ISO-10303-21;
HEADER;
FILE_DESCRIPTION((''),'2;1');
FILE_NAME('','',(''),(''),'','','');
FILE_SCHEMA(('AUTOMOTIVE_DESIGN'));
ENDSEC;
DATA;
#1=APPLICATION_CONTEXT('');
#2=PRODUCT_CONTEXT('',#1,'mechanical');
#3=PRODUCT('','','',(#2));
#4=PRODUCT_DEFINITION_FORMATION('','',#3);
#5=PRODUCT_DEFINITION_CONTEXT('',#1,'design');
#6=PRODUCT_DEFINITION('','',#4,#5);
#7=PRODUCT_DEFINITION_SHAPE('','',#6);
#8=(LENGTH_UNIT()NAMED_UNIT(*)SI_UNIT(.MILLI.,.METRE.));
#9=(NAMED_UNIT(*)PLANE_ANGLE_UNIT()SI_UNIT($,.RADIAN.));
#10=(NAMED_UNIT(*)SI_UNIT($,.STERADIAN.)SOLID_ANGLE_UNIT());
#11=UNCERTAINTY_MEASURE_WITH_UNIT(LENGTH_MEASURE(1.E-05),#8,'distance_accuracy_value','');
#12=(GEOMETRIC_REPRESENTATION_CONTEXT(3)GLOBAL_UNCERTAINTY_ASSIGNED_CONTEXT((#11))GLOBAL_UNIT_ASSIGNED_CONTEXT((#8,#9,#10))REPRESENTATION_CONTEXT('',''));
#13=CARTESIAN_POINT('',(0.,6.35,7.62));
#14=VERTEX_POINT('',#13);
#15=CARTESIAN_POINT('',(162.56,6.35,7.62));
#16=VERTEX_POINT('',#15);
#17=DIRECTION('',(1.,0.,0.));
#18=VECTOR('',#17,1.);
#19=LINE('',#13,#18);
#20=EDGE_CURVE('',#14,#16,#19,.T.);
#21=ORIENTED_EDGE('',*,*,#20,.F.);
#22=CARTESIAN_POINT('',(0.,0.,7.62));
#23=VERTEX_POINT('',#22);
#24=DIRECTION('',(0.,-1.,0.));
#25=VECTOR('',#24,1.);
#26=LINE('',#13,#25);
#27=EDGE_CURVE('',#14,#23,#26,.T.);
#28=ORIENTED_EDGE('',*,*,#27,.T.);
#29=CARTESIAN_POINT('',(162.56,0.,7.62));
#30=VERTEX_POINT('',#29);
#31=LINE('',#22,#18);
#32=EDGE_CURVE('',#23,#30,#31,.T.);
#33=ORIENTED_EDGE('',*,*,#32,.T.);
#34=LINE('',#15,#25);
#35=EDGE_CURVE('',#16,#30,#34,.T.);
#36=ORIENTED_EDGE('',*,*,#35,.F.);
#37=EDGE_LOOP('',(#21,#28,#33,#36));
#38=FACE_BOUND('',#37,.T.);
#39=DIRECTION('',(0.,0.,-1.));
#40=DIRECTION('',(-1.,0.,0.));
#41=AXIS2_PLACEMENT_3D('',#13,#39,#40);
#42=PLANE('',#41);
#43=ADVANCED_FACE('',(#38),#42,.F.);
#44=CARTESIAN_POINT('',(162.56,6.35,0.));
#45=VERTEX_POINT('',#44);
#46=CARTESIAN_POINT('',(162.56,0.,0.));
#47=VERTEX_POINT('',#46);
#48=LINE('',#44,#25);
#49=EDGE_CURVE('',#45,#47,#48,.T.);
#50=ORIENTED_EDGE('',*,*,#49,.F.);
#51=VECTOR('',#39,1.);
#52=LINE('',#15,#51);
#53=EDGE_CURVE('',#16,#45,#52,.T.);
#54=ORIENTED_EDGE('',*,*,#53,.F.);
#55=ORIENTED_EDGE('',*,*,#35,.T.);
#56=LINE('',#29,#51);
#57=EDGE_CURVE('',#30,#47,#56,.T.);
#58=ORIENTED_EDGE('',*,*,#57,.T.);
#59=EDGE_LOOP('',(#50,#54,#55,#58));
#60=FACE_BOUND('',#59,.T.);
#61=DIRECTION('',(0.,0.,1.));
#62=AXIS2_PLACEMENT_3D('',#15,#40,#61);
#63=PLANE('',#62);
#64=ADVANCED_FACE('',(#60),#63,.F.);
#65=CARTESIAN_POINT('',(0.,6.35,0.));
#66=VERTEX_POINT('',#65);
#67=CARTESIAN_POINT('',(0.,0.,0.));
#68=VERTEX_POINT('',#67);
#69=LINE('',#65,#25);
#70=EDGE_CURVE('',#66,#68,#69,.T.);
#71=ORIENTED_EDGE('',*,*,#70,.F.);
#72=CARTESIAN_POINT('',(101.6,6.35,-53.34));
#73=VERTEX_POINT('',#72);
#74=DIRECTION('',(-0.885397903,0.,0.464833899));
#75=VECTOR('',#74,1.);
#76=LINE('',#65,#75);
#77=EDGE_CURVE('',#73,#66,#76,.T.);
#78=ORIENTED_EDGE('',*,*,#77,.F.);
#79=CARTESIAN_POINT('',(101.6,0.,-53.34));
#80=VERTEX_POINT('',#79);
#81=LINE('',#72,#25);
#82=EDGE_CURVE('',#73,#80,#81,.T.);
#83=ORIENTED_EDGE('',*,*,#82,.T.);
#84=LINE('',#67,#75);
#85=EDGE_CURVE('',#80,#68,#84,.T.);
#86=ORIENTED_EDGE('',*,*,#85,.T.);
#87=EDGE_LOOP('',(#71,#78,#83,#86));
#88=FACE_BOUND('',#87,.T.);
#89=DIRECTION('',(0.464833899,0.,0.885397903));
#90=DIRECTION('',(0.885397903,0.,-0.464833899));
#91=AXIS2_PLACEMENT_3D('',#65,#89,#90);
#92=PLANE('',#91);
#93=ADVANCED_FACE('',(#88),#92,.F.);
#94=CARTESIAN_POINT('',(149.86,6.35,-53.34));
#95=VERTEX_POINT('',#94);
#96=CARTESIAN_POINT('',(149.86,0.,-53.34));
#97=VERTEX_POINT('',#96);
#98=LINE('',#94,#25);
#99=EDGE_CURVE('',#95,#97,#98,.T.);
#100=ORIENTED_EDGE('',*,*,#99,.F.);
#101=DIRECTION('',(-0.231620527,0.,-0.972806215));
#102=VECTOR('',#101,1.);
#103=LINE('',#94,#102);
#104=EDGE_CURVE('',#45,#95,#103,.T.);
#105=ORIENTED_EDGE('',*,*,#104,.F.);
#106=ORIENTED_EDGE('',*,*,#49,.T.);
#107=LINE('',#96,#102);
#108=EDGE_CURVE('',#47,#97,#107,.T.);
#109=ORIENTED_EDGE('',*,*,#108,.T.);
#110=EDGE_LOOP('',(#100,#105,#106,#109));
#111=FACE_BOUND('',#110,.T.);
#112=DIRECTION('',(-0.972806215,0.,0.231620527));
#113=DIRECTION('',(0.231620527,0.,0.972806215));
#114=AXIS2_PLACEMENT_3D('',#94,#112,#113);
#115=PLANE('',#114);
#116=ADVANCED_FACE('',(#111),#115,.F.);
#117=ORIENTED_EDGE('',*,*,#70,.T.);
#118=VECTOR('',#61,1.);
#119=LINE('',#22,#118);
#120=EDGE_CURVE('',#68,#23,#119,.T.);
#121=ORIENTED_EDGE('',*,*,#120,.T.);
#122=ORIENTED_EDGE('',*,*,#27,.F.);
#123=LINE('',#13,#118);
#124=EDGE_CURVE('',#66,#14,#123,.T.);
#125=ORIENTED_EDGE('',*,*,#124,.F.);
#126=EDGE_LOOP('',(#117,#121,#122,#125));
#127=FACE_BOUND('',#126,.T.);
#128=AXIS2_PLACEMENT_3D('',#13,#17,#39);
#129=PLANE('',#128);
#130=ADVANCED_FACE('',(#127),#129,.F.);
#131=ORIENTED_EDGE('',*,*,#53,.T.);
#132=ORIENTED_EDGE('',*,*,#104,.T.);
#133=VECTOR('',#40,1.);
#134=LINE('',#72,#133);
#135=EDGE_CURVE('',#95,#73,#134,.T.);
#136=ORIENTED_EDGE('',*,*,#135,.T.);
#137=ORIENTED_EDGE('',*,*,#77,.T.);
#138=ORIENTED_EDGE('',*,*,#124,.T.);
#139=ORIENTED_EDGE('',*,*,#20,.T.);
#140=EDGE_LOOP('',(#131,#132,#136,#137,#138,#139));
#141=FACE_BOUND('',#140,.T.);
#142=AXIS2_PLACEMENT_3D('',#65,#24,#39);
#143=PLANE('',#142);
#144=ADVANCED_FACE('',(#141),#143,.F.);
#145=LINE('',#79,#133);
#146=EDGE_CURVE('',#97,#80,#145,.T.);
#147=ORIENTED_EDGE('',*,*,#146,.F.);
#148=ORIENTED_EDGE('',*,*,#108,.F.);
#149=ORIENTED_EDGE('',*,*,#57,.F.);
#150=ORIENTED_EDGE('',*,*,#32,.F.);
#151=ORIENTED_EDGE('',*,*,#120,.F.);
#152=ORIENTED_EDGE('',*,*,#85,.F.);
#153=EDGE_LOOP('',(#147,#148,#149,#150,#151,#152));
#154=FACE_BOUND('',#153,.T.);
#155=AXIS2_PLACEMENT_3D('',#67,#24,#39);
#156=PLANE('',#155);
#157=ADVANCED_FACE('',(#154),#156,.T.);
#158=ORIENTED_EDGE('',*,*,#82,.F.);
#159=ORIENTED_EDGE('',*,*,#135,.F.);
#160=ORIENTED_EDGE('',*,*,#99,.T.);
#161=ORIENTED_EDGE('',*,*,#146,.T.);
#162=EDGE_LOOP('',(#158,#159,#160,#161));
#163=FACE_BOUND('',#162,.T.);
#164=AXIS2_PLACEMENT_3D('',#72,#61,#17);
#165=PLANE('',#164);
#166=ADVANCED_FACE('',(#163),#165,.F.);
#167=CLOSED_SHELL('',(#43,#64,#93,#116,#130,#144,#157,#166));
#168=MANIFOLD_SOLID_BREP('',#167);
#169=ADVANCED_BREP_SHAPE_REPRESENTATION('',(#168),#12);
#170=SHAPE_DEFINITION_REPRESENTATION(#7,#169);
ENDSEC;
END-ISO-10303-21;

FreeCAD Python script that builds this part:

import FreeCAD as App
import Part
import Sketcher
Q = App.Units.Quantity


def add_polygon(sketch, points):
    """Adds a closed chain of lines whose ends are joined by coincident constraints."""
    first, n = sketch.GeometryCount, len(points)
    for a, b in zip(points, points[1:] + points[:1]):
        sketch.addGeometry(Part.LineSegment(App.Vector(*a, 0), App.Vector(*b, 0)), False)
    for i in range(n):
        sketch.addConstraint(Sketcher.Constraint("Coincident", first + i, 2, first + (i + 1) % n, 1))

doc = App.newDocument("Part")
body = doc.addObject("PartDesign::Body", "Body")

sketch1 = doc.addObject("Sketcher::SketchObject", "Sketch")
body.addObject(sketch1)
sketch1.AttachmentSupport = (doc.XZ_Plane, [""])
sketch1.MapMode = "FlatFace"
add_polygon(sketch1, [(102, -53), (0, 0), (0, 8), (163, 8), (163, 0), (150, -53)])
sketch1.addConstraint([
    Sketcher.Constraint("Vertical", 1),
    Sketcher.Constraint("Horizontal", 2),
    Sketcher.Constraint("Vertical", 3),
    Sketcher.Constraint("Horizontal", 5),
    Sketcher.Constraint("Coincident", 0, 2, -1, 1),
    Sketcher.Constraint("PointOnObject", 3, 2, -1),
    Sketcher.Constraint("DistanceX", 2, 1, 2, 2, Q("6.4 in")),
    Sketcher.Constraint("DistanceX", 5, 2, 5, 1, Q("1.9 in")),
    Sketcher.Constraint("DistanceY", 1, 1, 1, 2, Q("0.3 in")),
    Sketcher.Constraint("DistanceX", -1, 1, 5, 2, Q("4 in")),
    Sketcher.Constraint("DistanceY", 4, 2, -1, 1, Q("2.1 in")),
])
pad1 = doc.addObject("PartDesign::Pad", "Pad")
body.addObject(pad1)
pad1.Profile = sketch1
pad1.Length = Q("0.25 in")
pad1.Reversed = True

doc.recompute()
